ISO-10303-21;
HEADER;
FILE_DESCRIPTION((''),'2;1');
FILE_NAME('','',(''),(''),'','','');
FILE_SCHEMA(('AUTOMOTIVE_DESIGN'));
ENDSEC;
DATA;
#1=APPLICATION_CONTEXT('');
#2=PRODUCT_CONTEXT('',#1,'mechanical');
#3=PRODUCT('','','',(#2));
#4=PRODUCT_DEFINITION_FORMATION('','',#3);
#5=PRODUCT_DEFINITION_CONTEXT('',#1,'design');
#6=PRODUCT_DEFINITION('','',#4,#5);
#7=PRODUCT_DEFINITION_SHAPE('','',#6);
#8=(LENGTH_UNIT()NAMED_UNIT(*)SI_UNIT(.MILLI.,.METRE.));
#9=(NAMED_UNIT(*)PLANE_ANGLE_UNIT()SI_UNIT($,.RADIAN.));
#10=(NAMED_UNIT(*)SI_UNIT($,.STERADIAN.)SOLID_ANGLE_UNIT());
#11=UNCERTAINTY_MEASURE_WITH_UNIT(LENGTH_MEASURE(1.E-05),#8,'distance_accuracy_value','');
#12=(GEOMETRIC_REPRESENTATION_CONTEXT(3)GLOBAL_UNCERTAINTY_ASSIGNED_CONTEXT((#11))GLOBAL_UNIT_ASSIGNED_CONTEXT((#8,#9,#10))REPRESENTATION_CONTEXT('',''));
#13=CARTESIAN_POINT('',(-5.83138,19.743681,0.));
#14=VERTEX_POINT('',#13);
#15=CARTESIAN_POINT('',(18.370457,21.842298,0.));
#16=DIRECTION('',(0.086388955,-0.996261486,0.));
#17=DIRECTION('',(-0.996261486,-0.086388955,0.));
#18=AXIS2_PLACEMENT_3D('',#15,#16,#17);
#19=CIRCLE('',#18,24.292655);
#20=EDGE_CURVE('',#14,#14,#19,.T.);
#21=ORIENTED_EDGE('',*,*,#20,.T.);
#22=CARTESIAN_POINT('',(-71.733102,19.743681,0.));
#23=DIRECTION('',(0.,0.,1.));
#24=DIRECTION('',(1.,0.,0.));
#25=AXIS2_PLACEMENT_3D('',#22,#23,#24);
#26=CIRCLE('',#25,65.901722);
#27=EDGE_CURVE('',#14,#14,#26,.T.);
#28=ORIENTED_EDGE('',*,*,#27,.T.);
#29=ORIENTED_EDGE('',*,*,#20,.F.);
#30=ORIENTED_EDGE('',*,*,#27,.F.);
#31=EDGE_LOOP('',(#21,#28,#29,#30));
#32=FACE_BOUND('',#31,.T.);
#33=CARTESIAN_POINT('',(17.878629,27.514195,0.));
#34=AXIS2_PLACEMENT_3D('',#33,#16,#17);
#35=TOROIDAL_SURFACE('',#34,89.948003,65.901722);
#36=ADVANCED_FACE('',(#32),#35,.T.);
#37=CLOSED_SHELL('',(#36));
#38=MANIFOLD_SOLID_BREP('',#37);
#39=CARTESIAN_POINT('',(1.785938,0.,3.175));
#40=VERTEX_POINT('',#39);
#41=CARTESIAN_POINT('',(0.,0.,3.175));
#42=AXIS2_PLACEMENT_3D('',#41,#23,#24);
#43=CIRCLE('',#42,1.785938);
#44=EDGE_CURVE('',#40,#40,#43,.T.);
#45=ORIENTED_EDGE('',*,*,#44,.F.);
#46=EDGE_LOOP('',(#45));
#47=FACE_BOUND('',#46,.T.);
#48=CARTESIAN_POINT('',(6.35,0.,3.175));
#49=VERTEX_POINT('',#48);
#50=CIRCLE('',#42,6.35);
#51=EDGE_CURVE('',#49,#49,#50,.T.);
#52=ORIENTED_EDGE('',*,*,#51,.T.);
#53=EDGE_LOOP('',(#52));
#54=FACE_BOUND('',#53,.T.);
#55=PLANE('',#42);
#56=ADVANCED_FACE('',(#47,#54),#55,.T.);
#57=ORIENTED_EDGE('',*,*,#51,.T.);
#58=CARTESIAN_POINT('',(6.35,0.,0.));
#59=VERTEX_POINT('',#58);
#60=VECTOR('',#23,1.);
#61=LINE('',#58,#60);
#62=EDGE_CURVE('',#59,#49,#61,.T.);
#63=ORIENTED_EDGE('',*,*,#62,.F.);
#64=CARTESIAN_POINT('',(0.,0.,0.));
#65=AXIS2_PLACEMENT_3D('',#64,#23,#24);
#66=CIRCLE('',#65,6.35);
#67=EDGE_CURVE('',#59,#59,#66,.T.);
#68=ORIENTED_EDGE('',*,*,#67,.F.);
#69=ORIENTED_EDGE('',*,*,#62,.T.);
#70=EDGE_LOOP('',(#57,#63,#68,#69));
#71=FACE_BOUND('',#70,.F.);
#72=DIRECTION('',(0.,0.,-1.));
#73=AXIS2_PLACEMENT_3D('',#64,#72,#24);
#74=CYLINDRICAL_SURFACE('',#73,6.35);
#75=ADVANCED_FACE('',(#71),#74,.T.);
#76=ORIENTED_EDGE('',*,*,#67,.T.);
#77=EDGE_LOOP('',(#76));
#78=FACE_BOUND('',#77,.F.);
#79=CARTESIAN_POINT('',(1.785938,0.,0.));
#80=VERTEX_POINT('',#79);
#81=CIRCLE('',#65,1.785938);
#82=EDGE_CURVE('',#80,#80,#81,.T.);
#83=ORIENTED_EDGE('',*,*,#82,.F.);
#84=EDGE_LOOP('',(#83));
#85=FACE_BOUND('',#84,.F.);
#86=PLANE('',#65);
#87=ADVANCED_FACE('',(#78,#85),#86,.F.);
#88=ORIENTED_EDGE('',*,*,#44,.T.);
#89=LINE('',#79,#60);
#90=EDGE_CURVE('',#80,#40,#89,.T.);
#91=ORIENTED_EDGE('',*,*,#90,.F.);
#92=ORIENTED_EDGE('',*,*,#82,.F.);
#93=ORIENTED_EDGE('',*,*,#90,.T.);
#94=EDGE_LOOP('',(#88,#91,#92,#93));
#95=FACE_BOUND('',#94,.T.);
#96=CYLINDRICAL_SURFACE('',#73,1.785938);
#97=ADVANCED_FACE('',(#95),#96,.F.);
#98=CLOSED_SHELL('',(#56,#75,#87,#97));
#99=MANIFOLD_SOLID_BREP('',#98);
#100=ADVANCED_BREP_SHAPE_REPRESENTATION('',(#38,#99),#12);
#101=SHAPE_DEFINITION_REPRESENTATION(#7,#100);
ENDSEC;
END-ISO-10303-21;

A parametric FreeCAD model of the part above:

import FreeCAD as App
import Part
import Sketcher
from FreeCAD import Vector
Q = App.Units.Quantity

doc = App.newDocument("Part")
body = doc.addObject("PartDesign::Body", "Body")

# Sketch on XY plane
sketch1 = doc.addObject("Sketcher::SketchObject", "Sketch")
body.addObject(sketch1)
sketch1.AttachmentSupport = (doc.XY_Plane, [""])
sketch1.MapMode = "FlatFace"
sketch1.addGeometry([
    Part.Circle(Vector(0, 0, 0), Vector(0, 0, 1), 6.3),
    Part.Circle(Vector(0, 0, 0), Vector(0, 0, 1), 1.8),
], False)
sketch1.addConstraint([
    Sketcher.Constraint("Coincident", 0, 3, -1, 1),
    Sketcher.Constraint("Coincident", 1, 3, -1, 1),
    Sketcher.Constraint("Diameter", 0, Q("0.5 in")),
    Sketcher.Constraint("Diameter", 1, Q("0.140625 in")),
])
pad1 = doc.addObject("PartDesign::Pad", "Pad")
body.addObject(pad1)
pad1.Profile = sketch1
pad1.Length = Q("0.125 in")
body2 = doc.addObject("PartDesign::Body", "Body001")

# Sketch on XY plane
sketch2 = doc.addObject("Sketcher::SketchObject", "Sketch001")
body2.addObject(sketch2)
sketch2.AttachmentSupport = (doc.getObject("XY_Plane001"), [""])
sketch2.MapMode = "FlatFace"
sketch2.addGeometry(Part.Circle(Vector(-72, 20, 0), Vector(0, 0, 1), 66), False)
sketch2.addGeometry(Part.LineSegment(Vector(18, 28, 0), Vector(19, 18, 0)), True)  # axis
sketch2.addConstraint([
    Sketcher.Constraint("Diameter", 0, 131.803444),
    Sketcher.Constraint("Distance", 1, 10.0),
    Sketcher.Constraint("DistanceY", 1, 2, 0, 3, 2.192101),
    Sketcher.Constraint("DistanceY", -1, 1, 0, 3, 19.743681),
    Sketcher.Constraint("DistanceX", -1, 1, 1, 1, 17.878629),
    Sketcher.Constraint("DistanceX", -1, 1, 1, 2, 18.742518),
    Sketcher.Constraint("DistanceX", 0, 3, 1, 1, 89.611731),
])
revolution = doc.addObject("PartDesign::Revolution", "Revolution")
body2.addObject(revolution)
revolution.Profile = sketch2
revolution.ReferenceAxis = (sketch2, ["Axis0"])
revolution.Angle = 360

doc.recompute()
